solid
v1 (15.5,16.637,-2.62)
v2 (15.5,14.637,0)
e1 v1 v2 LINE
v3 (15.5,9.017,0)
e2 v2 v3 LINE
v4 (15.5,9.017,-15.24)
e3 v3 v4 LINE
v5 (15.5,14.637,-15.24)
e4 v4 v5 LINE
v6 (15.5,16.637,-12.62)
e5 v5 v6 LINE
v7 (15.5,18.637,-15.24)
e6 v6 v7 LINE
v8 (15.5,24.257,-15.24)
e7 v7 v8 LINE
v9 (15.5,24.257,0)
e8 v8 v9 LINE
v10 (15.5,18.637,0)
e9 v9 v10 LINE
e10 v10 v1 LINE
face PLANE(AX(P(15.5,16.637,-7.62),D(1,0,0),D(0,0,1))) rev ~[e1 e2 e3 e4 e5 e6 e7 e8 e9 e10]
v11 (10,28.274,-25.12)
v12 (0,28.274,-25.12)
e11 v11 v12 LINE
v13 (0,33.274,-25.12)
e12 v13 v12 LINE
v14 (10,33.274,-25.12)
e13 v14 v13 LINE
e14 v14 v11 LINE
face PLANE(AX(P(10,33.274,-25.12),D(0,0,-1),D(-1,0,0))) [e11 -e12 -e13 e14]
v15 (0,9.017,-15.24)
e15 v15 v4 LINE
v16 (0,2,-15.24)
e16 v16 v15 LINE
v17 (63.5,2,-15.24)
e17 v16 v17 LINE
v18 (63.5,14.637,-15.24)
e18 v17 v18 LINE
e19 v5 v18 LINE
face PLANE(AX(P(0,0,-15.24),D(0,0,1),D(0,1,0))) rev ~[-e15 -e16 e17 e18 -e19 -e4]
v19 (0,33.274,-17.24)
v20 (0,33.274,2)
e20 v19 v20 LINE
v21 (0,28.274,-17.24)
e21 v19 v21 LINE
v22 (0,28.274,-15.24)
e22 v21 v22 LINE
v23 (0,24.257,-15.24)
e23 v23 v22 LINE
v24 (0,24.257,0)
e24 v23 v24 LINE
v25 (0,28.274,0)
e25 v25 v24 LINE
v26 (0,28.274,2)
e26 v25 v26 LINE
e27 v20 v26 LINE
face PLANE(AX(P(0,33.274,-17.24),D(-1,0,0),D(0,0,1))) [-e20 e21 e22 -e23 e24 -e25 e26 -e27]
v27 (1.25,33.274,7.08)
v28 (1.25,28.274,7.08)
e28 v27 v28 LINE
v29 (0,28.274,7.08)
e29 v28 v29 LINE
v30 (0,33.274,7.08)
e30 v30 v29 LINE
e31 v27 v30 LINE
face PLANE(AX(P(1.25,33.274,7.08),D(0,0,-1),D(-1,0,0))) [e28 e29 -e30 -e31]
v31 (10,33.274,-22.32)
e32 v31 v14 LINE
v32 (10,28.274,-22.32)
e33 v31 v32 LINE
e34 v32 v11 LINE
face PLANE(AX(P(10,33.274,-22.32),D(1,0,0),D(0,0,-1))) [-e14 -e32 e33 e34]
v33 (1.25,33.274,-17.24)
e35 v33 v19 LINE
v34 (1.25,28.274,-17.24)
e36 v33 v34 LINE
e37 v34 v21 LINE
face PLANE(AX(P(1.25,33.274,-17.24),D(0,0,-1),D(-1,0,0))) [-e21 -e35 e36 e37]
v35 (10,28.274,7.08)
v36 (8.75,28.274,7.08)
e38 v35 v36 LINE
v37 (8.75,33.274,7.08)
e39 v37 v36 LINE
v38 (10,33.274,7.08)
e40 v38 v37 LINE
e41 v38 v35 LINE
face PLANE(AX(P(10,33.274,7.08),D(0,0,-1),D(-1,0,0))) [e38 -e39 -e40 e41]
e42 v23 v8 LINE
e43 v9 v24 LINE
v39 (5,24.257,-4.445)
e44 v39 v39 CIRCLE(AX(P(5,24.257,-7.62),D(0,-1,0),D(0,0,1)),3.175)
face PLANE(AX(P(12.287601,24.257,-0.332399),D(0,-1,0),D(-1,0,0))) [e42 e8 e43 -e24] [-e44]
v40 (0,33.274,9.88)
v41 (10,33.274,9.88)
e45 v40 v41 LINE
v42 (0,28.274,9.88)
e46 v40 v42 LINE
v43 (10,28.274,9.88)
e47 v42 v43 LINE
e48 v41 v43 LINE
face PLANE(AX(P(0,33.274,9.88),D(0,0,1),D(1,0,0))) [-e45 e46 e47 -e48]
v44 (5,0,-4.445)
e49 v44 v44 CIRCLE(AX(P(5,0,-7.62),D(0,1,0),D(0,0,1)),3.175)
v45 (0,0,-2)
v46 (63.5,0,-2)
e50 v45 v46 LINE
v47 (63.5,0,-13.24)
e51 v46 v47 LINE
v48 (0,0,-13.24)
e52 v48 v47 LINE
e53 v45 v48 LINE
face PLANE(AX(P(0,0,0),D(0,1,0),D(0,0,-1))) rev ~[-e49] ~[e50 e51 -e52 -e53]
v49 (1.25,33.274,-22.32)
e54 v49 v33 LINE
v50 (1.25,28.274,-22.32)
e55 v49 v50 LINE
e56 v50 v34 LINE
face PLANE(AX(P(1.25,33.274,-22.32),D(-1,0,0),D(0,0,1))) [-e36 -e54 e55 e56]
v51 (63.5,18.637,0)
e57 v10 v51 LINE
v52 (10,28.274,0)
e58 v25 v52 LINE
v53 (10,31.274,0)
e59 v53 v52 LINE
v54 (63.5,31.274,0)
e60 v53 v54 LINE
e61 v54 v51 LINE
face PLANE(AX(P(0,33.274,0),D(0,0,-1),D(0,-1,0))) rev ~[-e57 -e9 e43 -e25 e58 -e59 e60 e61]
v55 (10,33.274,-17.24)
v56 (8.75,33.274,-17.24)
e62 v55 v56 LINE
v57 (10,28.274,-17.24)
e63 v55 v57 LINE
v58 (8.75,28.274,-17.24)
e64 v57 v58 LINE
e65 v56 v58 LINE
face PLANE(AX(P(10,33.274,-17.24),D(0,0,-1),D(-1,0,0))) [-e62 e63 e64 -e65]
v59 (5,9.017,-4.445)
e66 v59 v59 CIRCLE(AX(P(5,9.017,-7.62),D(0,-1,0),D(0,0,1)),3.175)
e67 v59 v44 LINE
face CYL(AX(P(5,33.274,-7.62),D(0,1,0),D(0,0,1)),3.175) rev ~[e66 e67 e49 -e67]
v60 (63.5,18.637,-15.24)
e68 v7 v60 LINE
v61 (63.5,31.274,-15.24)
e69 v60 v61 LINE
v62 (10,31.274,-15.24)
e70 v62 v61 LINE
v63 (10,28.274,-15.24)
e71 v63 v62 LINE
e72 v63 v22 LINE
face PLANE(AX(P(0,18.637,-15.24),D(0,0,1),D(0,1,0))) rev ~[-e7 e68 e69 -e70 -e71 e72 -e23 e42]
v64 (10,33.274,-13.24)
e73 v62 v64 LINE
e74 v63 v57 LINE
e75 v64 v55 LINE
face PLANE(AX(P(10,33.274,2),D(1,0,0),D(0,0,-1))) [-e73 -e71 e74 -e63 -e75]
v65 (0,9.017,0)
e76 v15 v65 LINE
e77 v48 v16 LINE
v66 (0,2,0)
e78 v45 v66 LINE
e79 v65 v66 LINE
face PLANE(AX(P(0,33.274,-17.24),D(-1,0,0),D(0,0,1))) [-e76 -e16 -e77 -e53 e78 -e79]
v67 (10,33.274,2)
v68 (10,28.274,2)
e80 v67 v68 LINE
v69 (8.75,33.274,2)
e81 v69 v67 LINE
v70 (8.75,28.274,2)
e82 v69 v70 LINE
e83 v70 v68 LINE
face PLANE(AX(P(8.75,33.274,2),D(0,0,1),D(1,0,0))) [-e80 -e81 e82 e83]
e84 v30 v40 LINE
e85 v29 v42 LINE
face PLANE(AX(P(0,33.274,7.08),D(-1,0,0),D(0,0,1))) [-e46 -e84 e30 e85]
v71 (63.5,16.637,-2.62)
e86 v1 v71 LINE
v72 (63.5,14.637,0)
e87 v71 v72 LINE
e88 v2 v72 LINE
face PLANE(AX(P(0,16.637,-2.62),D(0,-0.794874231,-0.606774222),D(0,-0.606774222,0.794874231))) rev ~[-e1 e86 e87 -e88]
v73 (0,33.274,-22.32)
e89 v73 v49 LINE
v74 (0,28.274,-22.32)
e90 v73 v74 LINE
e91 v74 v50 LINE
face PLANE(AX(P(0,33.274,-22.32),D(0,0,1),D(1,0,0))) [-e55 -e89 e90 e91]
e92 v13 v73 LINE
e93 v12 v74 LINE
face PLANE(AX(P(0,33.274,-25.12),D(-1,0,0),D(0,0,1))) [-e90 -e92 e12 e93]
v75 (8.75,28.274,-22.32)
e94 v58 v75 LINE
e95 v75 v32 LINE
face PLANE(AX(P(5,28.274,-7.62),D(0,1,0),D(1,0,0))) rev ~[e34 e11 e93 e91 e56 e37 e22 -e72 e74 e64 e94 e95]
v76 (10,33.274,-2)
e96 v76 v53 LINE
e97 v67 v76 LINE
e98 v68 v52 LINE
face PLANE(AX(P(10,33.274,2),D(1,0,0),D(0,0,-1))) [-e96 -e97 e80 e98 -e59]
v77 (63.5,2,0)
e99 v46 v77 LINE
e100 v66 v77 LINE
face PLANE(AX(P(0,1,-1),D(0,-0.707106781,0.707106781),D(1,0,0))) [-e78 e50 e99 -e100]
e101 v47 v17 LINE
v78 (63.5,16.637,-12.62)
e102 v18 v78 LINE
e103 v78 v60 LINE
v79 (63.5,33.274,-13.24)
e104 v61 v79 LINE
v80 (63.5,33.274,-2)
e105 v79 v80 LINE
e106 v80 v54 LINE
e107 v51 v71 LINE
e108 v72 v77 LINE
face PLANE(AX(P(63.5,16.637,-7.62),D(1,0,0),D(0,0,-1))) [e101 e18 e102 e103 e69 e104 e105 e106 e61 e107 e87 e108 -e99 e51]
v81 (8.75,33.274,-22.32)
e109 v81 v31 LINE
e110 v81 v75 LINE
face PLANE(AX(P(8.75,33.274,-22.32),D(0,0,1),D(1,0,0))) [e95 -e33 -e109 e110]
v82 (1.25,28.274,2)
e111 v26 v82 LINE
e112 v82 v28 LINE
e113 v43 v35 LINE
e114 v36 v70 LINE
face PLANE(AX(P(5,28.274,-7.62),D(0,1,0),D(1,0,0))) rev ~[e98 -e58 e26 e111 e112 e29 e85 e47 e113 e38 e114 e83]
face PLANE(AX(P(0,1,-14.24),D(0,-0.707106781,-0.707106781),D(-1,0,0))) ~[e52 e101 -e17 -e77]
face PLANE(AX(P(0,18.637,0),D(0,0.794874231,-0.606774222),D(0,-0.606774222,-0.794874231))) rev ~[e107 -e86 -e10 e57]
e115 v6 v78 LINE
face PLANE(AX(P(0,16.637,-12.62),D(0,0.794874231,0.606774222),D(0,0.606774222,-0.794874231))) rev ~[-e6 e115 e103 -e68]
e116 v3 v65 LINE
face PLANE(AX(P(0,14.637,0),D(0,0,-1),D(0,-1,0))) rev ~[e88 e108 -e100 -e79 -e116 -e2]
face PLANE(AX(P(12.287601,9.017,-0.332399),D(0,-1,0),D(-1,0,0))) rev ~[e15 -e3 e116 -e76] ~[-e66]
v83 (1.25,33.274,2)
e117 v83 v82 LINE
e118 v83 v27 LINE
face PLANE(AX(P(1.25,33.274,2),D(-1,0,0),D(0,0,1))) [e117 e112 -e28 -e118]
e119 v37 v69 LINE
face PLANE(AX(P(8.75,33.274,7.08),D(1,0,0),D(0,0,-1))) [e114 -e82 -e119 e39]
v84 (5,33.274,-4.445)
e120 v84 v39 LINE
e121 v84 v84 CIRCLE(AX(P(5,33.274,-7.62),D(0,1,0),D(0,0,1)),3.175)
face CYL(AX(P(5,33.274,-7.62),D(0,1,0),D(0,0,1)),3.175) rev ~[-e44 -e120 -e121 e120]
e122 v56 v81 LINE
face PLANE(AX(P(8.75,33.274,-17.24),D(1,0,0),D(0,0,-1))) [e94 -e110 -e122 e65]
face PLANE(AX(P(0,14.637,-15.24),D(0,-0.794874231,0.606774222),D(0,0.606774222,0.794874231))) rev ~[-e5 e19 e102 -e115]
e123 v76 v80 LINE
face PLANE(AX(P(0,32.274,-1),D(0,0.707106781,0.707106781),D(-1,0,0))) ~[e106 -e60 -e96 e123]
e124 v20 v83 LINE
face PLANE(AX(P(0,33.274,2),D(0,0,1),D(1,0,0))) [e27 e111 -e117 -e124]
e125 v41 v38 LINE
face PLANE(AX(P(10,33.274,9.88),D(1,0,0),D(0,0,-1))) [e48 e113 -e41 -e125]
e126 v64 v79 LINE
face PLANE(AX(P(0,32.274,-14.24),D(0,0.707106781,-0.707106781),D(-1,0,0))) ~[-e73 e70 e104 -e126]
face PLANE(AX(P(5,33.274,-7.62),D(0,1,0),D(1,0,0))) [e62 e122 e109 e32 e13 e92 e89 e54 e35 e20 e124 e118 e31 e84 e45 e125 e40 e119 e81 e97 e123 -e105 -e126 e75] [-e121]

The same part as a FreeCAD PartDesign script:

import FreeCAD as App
import Part
import Sketcher
from FreeCAD import Vector
Q = App.Units.Quantity


def edges_at(feature, points):
    """Names of the edges that pass closest to the given points."""
    edges = feature.Shape.Edges
    near = lambda p: min(range(len(edges)), key=lambda i: edges[i].distToShape(Part.Vertex(*p))[0])
    return sorted({f"Edge{near(p) + 1}" for p in points})


def add_polygon(sketch, points):
    """Adds a closed chain of lines whose ends are joined by coincident constraints."""
    first, n = sketch.GeometryCount, len(points)
    for a, b in zip(points, points[1:] + points[:1]):
        sketch.addGeometry(Part.LineSegment(App.Vector(*a, 0), App.Vector(*b, 0)), False)
    for i in range(n):
        sketch.addConstraint(Sketcher.Constraint("Coincident", first + i, 2, first + (i + 1) % n, 1))

doc = App.newDocument("Part")
params = doc.addObject("Spreadsheet::Sheet", "Params")
for row, (alias, value) in enumerate([
    ("sketch1_height", "15.24 mm"),
    ("pad1_length", "63.5 mm"),
    ("chamfer_size", "2 mm"),
    ("sketch2_width", "10 mm"),
    ("sketch2_height", "2.8 mm"),
    ("sketch2_width2", "1.25 mm"),
    ("sketch2_height2", "5.08 mm"),
    ("sketch2_height3", "19.24 mm"),
    ("pad2_length", "5 mm"),
    ("sketch3_diameter", "6.35 mm"),
    ("sketch4_diameter", "6.35 mm"),
    ("sketch4_width", "21 mm"),
    ("pocket2_length", "15.24 mm"),
], start=1):
    params.set(f"A{row}", alias)
    params.set(f"B{row}", "=" + value)
    params.setAlias(f"B{row}", alias)

body = doc.addObject("PartDesign::Body", "Body")

# Sketch on YZ plane
sketch1 = body.newObject("Sketcher::SketchObject", "Sketch")
sketch1.AttachmentSupport = (doc.getObject("YZ_Plane"), [""])
sketch1.MapMode = "FlatFace"
add_polygon(sketch1, [(0, 0), (0, -15.2), (14.6, -15.2), (16.6, -12.6), (18.6, -15.2), (33.3, -15.2), (33.3, 0), (18.6, 0), (16.6, -2.6), (14.6, 0)])  # lines 0-9
sketch1.addConstraint(Sketcher.Constraint("Vertical", 0))
sketch1.addConstraint(Sketcher.Constraint("Horizontal", 1))
sketch1.addConstraint(Sketcher.Constraint("Horizontal", 4))
sketch1.addConstraint(Sketcher.Constraint("Vertical", 5))
sketch1.addConstraint(Sketcher.Constraint("Horizontal", 6))
sketch1.addConstraint(Sketcher.Constraint("Horizontal", 9))
sketch1.addConstraint(Sketcher.Constraint("Coincident", 9, 2, -1, 1))
sketch1.addConstraint(Sketcher.Constraint("PointOnObject", 5, 2, -1))
sketch1.addConstraint(Sketcher.Constraint("Parallel", 2, 7))
sketch1.addConstraint(Sketcher.Constraint("Parallel", 3, 8))
sketch1.addConstraint(Sketcher.Constraint("Horizontal", 1, 2, 3, 2))
sketch1.addConstraint(Sketcher.Constraint("Vertical", 3, 2, 6, 2))
sketch1.addConstraint(Sketcher.Constraint("Vertical", 2, 2, 7, 2))
sketch1.addConstraint(Sketcher.Constraint("Vertical", 1, 2, 8, 2))
sketch1.addConstraint(Sketcher.Constraint("Equal", 1, 4))
sketch1.addConstraint(Sketcher.Constraint("DistanceX", 1, 2, 2, 2, Q("2 mm")))
sketch1.addConstraint(Sketcher.Constraint("DistanceY", 2, 2, 7, 2, Q("10 mm")))
sketch1.addConstraint(Sketcher.Constraint("DistanceY", 0, 2, 0, 1, Q("15.24 mm")))
sketch1.addConstraint(Sketcher.Constraint("DistanceX", 1, 1, 1, 2, Q("14.637 mm")))
sketch1.setExpression("Constraints[27]", "Params.sketch1_height")
pad1 = body.newObject("PartDesign::Pad", "Pad")
pad1.Profile = sketch1
pad1.setExpression("Length", "Params.pad1_length")
doc.recompute()

chamfer = body.newObject("PartDesign::Chamfer", "Chamfer")
chamfer.Base = (pad1, edges_at(pad1, [
    (31.75, 33.274, 0),
    (31.75, 33.274, -15.24),
    (31.75, 0, -15.24),
    (31.75, 0, 0),
]))
chamfer.setExpression("Size", "Params.chamfer_size")

# Sketch on XZ plane
sketch2 = body.newObject("Sketcher::SketchObject", "Sketch001")
sketch2.AttachmentSupport = (doc.getObject("XZ_Plane"), [""])
sketch2.MapMode = "FlatFace"
sketch2.AttachmentOffset = App.Placement(Vector(0, 0, -33.274), App.Rotation())
add_polygon(sketch2, [(10, -25.1), (0, -25.1), (0, -22.3), (1.2, -22.3), (1.2, -17.2), (0, -17.2), (0, 2), (1.2, 2), (1.2, 7.1), (0, 7.1), (0, 9.9), (10, 9.9), (10, 7.1), (8.8, 7.1), (8.8, 2), (10, 2), (10, -17.2), (8.8, -17.2), (8.8, -22.3), (10, -22.3)])  # lines 0-19
sketch2.addConstraint(Sketcher.Constraint("Horizontal", 0))
sketch2.addConstraint(Sketcher.Constraint("Vertical", 1))
sketch2.addConstraint(Sketcher.Constraint("Horizontal", 2))
sketch2.addConstraint(Sketcher.Constraint("Vertical", 3))
sketch2.addConstraint(Sketcher.Constraint("Horizontal", 4))
sketch2.addConstraint(Sketcher.Constraint("Vertical", 5))
sketch2.addConstraint(Sketcher.Constraint("Horizontal", 6))
sketch2.addConstraint(Sketcher.Constraint("Vertical", 7))
sketch2.addConstraint(Sketcher.Constraint("Horizontal", 8))
sketch2.addConstraint(Sketcher.Constraint("Vertical", 9))
sketch2.addConstraint(Sketcher.Constraint("Horizontal", 10))
sketch2.addConstraint(Sketcher.Constraint("Vertical", 11))
sketch2.addConstraint(Sketcher.Constraint("Horizontal", 12))
sketch2.addConstraint(Sketcher.Constraint("Vertical", 13))
sketch2.addConstraint(Sketcher.Constraint("Horizontal", 14))
sketch2.addConstraint(Sketcher.Constraint("Vertical", 15))
sketch2.addConstraint(Sketcher.Constraint("Horizontal", 16))
sketch2.addConstraint(Sketcher.Constraint("Vertical", 17))
sketch2.addConstraint(Sketcher.Constraint("Horizontal", 18))
sketch2.addConstraint(Sketcher.Constraint("Vertical", 19))
sketch2.addConstraint(Sketcher.Constraint("PointOnObject", 0, 2, -2))
sketch2.addConstraint(Sketcher.Constraint("PointOnObject", 4, 2, -2))
sketch2.addConstraint(Sketcher.Constraint("PointOnObject", 8, 2, -2))
sketch2.addConstraint(Sketcher.Constraint("Horizontal", 8, 2, 11, 2))
sketch2.addConstraint(Sketcher.Constraint("Horizontal", 6, 2, 13, 2))
sketch2.addConstraint(Sketcher.Constraint("Horizontal", 4, 2, 15, 2))
sketch2.addConstraint(Sketcher.Constraint("Horizontal", 2, 2, 17, 2))
sketch2.addConstraint(Sketcher.Constraint("Vertical", 3, 2, 6, 2))
sketch2.addConstraint(Sketcher.Constraint("Vertical", 11, 2, 14, 2))
sketch2.addConstraint(Sketcher.Constraint("Vertical", 13, 2, 16, 2))
sketch2.addConstraint(Sketcher.Constraint("Vertical", 15, 2, 18, 2))
sketch2.addConstraint(Sketcher.Constraint("Equal", 8, 12))
sketch2.addConstraint(Sketcher.Constraint("Equal", 3, 7))
sketch2.addConstraint(Sketcher.Constraint("Equal", 1, 9))
sketch2.addConstraint(Sketcher.Constraint("DistanceX", 0, 2, 0, 1, Q("10 mm")))
sketch2.addConstraint(Sketcher.Constraint("DistanceY", 1, 1, 1, 2, Q("2.8 mm")))
sketch2.addConstraint(Sketcher.Constraint("DistanceY", -1, 1, 5, 2, Q("2 mm")))
sketch2.addConstraint(Sketcher.Constraint("DistanceX", 2, 1, 2, 2, Q("1.25 mm")))
sketch2.addConstraint(Sketcher.Constraint("DistanceY", 3, 1, 3, 2, Q("5.08 mm")))
sketch2.addConstraint(Sketcher.Constraint("DistanceY", 5, 1, 5, 2, Q("19.24 mm")))
sketch2.setExpression("Constraints[54]", "Params.sketch2_width")
sketch2.setExpression("Constraints[55]", "Params.sketch2_height")
sketch2.setExpression("Constraints[57]", "Params.sketch2_width2")
sketch2.setExpression("Constraints[58]", "Params.sketch2_height2")
sketch2.setExpression("Constraints[59]", "Params.sketch2_height3")
pad2 = body.newObject("PartDesign::Pad", "Pad001")
pad2.Profile = sketch2
pad2.setExpression("Length", "Params.pad2_length")

# Sketch on XZ plane
sketch3 = body.newObject("Sketcher::SketchObject", "Sketch002")
sketch3.AttachmentSupport = (doc.getObject("XZ_Plane"), [""])
sketch3.MapMode = "FlatFace"
sketch3.AttachmentOffset = App.Placement(Vector(0, 0, -33.274), App.Rotation())
sketch3.addGeometry(Part.Circle(Vector(5, -7.6, 0), Vector(0, 0, 1), 3.2), False)
sketch3.addConstraint(Sketcher.Constraint("Diameter", 0, Q("6.35 mm")))
sketch3.addConstraint(Sketcher.Constraint("DistanceX", -1, 1, 0, 3, Q("5 mm")))
sketch3.addConstraint(Sketcher.Constraint("DistanceY", 0, 3, -1, 1, Q("7.62 mm")))
sketch3.setExpression("Constraints[0]", "Params.sketch3_diameter")
pocket1 = body.newObject("PartDesign::Pocket", "Pocket")
pocket1.Profile = sketch3
pocket1.Type = "ThroughAll"
pocket1.Reversed = True

# Sketch on XZ plane
sketch4 = body.newObject("Sketcher::SketchObject", "Sketch003")
sketch4.AttachmentSupport = (doc.getObject("XZ_Plane"), [""])
sketch4.MapMode = "FlatFace"
sketch4.AttachmentOffset = App.Placement(Vector(0, 0, -16.637), App.Rotation())
add_polygon(sketch4, [(15.5, -18.1), (15.5, 2.9), (-5.5, 2.9), (-5.5, -18.1)])  # lines 0-3
sketch4.addGeometry(Part.Circle(Vector(5, -7.6, 0), Vector(0, 0, 1), 3.2), False)  # 4
sketch4.addConstraint(Sketcher.Constraint("Vertical", 0))
sketch4.addConstraint(Sketcher.Constraint("Horizontal", 1))
sketch4.addConstraint(Sketcher.Constraint("Vertical", 2))
sketch4.addConstraint(Sketcher.Constraint("Horizontal", 3))
sketch4.addConstraint(Sketcher.Constraint("Equal", 3, 0))
sketch4.addConstraint(Sketcher.Constraint("Diameter", 4, Q("6.35 mm")))
sketch4.addConstraint(Sketcher.Constraint("DistanceX", 1, 2, 1, 1, Q("21 mm")))
sketch4.addConstraint(Sketcher.Constraint("DistanceX", -1, 1, 4, 3, Q("5 mm")))
sketch4.addConstraint(Sketcher.Constraint("DistanceX", -1, 1, 0, 2, Q("15.5 mm")))
sketch4.addConstraint(Sketcher.Constraint("DistanceY", 4, 3, 0, 2, Q("10.5 mm")))
sketch4.addConstraint(Sketcher.Constraint("DistanceY", 4, 3, -1, 1, Q("7.62 mm")))
sketch4.setExpression("Constraints[9]", "Params.sketch4_diameter")
sketch4.setExpression("Constraints[10]", "Params.sketch4_width")
pocket2 = body.newObject("PartDesign::Pocket", "Pocket001")
pocket2.Profile = sketch4
pocket2.setExpression("Length", "Params.pocket2_length")
pocket2.Midplane = True

doc.recompute()
